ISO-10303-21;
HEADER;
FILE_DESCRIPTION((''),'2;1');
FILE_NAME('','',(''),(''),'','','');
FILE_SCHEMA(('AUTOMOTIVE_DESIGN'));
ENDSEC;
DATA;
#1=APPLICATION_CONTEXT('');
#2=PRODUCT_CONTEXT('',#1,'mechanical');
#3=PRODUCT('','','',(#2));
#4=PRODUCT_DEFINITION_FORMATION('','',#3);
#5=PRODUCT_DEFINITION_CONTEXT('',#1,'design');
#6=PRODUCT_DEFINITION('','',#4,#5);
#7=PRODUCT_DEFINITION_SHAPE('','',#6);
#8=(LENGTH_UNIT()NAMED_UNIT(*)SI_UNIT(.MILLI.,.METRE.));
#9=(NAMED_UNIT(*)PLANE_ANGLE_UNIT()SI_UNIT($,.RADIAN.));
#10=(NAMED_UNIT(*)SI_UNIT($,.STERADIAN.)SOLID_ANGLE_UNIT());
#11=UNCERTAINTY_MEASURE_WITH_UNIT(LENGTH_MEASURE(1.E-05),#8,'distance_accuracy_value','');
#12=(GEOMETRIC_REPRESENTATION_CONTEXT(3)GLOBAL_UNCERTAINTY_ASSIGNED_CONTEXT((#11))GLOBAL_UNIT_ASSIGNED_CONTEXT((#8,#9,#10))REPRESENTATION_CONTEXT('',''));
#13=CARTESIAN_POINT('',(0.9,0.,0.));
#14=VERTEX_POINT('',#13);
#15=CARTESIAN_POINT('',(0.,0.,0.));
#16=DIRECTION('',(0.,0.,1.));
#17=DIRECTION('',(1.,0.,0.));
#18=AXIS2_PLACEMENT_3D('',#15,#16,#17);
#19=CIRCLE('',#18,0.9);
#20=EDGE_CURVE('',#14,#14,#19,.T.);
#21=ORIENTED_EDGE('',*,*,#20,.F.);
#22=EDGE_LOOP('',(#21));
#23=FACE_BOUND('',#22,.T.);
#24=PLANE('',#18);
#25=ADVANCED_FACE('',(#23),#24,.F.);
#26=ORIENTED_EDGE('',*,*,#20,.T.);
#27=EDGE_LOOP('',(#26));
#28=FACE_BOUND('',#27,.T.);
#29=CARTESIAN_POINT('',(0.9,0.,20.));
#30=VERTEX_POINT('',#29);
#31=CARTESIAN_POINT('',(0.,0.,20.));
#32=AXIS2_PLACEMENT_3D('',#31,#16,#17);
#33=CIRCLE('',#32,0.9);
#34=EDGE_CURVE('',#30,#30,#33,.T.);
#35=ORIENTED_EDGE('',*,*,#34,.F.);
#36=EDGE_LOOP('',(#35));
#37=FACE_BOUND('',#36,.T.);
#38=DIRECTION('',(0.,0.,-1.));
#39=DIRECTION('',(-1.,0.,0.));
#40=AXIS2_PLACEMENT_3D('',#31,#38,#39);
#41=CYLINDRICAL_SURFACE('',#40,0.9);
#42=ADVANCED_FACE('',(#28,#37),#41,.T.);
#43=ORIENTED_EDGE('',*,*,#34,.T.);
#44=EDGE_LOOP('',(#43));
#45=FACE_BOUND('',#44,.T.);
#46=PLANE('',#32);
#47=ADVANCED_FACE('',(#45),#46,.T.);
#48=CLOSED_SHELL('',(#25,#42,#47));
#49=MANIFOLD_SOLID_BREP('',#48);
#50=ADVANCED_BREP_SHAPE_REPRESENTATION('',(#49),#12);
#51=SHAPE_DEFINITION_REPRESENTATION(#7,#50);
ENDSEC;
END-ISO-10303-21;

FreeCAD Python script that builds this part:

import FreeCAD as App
import Part
import Sketcher
from FreeCAD import Vector
Q = App.Units.Quantity

doc = App.newDocument("Part")
body = doc.addObject("PartDesign::Body", "Body")

# Sketch on XY plane
sketch1 = body.newObject("Sketcher::SketchObject", "Sketch")
sketch1.AttachmentSupport = (doc.getObject("XY_Plane"), [""])
sketch1.MapMode = "FlatFace"
sketch1.addGeometry(Part.Circle(Vector(0, 0, 0), Vector(0, 0, 1), 0.9), False)
sketch1.addConstraint(Sketcher.Constraint("Coincident", 0, 3, -1, 1))
sketch1.addConstraint(Sketcher.Constraint("Diameter", 0, Q("1.8 mm")))
pad1 = body.newObject("PartDesign::Pad", "Pad")
pad1.Profile = sketch1
pad1.Length = 20

doc.recompute()
